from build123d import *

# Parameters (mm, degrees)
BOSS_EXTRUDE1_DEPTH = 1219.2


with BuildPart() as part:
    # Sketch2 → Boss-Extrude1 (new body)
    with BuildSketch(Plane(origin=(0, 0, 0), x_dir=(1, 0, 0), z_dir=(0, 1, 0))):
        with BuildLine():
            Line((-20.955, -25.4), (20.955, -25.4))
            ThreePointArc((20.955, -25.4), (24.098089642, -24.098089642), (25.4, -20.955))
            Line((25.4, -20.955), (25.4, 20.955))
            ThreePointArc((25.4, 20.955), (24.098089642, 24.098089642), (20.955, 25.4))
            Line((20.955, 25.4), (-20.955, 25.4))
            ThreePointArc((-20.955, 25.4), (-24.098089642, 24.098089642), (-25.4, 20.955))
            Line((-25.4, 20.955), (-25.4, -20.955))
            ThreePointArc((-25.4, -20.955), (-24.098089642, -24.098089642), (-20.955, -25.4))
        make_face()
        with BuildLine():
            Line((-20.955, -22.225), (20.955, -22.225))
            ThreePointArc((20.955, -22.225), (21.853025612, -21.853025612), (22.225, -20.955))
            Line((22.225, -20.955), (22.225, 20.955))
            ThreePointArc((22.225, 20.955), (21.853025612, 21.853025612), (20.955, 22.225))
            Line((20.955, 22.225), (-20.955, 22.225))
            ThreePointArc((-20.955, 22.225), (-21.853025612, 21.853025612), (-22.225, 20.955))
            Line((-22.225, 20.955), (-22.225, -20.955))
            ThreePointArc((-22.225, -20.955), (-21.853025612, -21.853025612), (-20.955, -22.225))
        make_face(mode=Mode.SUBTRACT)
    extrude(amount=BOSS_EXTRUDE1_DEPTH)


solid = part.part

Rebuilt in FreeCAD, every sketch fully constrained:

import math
import FreeCAD as App
import Part
import Sketcher
from FreeCAD import Vector
Q = App.Units.Quantity

doc = App.newDocument("Part")
params = doc.addObject("Spreadsheet::Sheet", "Params")
for row, (alias, value) in enumerate([
    ("sketch1_radius", "0.05 in"),
    ("sketch1_radius2", "0.175 in"),
    ("pad1_length", "48 in"),
], start=1):
    params.set(f"A{row}", alias)
    params.set(f"B{row}", "=" + value)
    params.setAlias(f"B{row}", alias)

body = doc.addObject("PartDesign::Body", "Body")

# Sketch on XZ plane
sketch1 = doc.addObject("Sketcher::SketchObject", "Sketch")
body.addObject(sketch1)
sketch1.AttachmentSupport = (doc.XZ_Plane, [""])
sketch1.MapMode = "FlatFace"
sketch1.addGeometry([
    Part.LineSegment(Vector(-21, 25.4, 0), Vector(21, 25.4, 0)),  # 0
    Part.ArcOfCircle(Part.Circle(Vector(21, 21, 0), Vector(0, 0, 1), 4.4), math.radians(0), math.radians(90)),  # 1
    Part.LineSegment(Vector(25.4, 21, 0), Vector(25.4, -21, 0)),  # 2
    Part.ArcOfCircle(Part.Circle(Vector(21, -21, 0), Vector(0, 0, 1), 4.4), math.radians(-90), math.radians(0)),  # 3
    Part.LineSegment(Vector(21, -25.4, 0), Vector(-21, -25.4, 0)),  # 4
    Part.ArcOfCircle(Part.Circle(Vector(-21, -21, 0), Vector(0, 0, 1), 4.4), math.radians(-180), math.radians(-90)),  # 5
    Part.LineSegment(Vector(-25.4, -21, 0), Vector(-25.4, 21, 0)),  # 6
    Part.ArcOfCircle(Part.Circle(Vector(-21, 21, 0), Vector(0, 0, 1), 4.4), math.radians(90), math.radians(180)),  # 7
    Part.LineSegment(Vector(21, 22.2, 0), Vector(-21, 22.2, 0)),  # 8
    Part.ArcOfCircle(Part.Circle(Vector(-21, 21, 0), Vector(0, 0, 1), 1.3), math.radians(90), math.radians(180)),  # 9
    Part.LineSegment(Vector(-22.2, 21, 0), Vector(-22.2, -21, 0)),  # 10
    Part.ArcOfCircle(Part.Circle(Vector(-21, -21, 0), Vector(0, 0, 1), 1.3), math.radians(180), math.radians(270)),  # 11
    Part.LineSegment(Vector(-21, -22.2, 0), Vector(21, -22.2, 0)),  # 12
    Part.ArcOfCircle(Part.Circle(Vector(21, -21, 0), Vector(0, 0, 1), 1.3), math.radians(-90), math.radians(0)),  # 13
    Part.LineSegment(Vector(22.2, -21, 0), Vector(22.2, 21, 0)),  # 14
    Part.ArcOfCircle(Part.Circle(Vector(21, 21, 0), Vector(0, 0, 1), 1.3), math.radians(0), math.radians(90)),  # 15
], False)
sketch1.addConstraint([
    Sketcher.Constraint("Tangent", 0, 2, 1, 2),
    Sketcher.Constraint("Tangent", 1, 1, 2, 1),
    Sketcher.Constraint("Tangent", 2, 2, 3, 2),
    Sketcher.Constraint("Tangent", 3, 1, 4, 1),
    Sketcher.Constraint("Tangent", 4, 2, 5, 2),
    Sketcher.Constraint("Tangent", 5, 1, 6, 1),
    Sketcher.Constraint("Tangent", 6, 2, 7, 2),
    Sketcher.Constraint("Tangent", 7, 1, 0, 1),
    Sketcher.Constraint("Tangent", 8, 2, 9, 1),
    Sketcher.Constraint("Tangent", 9, 2, 10, 1),
    Sketcher.Constraint("Tangent", 10, 2, 11, 1),
    Sketcher.Constraint("Tangent", 11, 2, 12, 1),
    Sketcher.Constraint("Tangent", 12, 2, 13, 1),
    Sketcher.Constraint("Tangent", 13, 2, 14, 1),
    Sketcher.Constraint("Tangent", 14, 2, 15, 1),
    Sketcher.Constraint("Tangent", 15, 2, 8, 1),
    Sketcher.Constraint("Horizontal", 0),
    Sketcher.Constraint("Vertical", 2),
    Sketcher.Constraint("Horizontal", 4),
    Sketcher.Constraint("Vertical", 6),
    Sketcher.Constraint("Horizontal", 8),
    Sketcher.Constraint("Vertical", 10),
    Sketcher.Constraint("Horizontal", 12),
    Sketcher.Constraint("Vertical", 14),
    Sketcher.Constraint("Coincident", 9, 3, 7, 3),
    Sketcher.Constraint("Coincident", 11, 3, 5, 3),
    Sketcher.Constraint("Coincident", 13, 3, 3, 3),
    Sketcher.Constraint("Equal", 1, 3),
    Sketcher.Constraint("Equal", 3, 5),
    Sketcher.Constraint("Equal", 5, 7),
    Sketcher.Constraint("Equal", 13, 15),
    Sketcher.Constraint("Symmetric", 1, 3, 5, 3, -1, 1),
    Sketcher.Constraint("Equal", 12, 2),
    Sketcher.Constraint("Radius", 9, Q("0.05 in")),
    Sketcher.Constraint("DistanceY", -1, 1, 0, 2, Q("1 in")),
    Sketcher.Constraint("Radius", 1, Q("0.175 in")),
])
sketch1.setExpression("Constraints[33]", "Params.sketch1_radius")
sketch1.setExpression("Constraints[35]", "Params.sketch1_radius2")
pad1 = doc.addObject("PartDesign::Pad", "Pad")
body.addObject(pad1)
pad1.Profile = sketch1
pad1.setExpression("Length", "Params.pad1_length")
pad1.Reversed = True

doc.recompute()
